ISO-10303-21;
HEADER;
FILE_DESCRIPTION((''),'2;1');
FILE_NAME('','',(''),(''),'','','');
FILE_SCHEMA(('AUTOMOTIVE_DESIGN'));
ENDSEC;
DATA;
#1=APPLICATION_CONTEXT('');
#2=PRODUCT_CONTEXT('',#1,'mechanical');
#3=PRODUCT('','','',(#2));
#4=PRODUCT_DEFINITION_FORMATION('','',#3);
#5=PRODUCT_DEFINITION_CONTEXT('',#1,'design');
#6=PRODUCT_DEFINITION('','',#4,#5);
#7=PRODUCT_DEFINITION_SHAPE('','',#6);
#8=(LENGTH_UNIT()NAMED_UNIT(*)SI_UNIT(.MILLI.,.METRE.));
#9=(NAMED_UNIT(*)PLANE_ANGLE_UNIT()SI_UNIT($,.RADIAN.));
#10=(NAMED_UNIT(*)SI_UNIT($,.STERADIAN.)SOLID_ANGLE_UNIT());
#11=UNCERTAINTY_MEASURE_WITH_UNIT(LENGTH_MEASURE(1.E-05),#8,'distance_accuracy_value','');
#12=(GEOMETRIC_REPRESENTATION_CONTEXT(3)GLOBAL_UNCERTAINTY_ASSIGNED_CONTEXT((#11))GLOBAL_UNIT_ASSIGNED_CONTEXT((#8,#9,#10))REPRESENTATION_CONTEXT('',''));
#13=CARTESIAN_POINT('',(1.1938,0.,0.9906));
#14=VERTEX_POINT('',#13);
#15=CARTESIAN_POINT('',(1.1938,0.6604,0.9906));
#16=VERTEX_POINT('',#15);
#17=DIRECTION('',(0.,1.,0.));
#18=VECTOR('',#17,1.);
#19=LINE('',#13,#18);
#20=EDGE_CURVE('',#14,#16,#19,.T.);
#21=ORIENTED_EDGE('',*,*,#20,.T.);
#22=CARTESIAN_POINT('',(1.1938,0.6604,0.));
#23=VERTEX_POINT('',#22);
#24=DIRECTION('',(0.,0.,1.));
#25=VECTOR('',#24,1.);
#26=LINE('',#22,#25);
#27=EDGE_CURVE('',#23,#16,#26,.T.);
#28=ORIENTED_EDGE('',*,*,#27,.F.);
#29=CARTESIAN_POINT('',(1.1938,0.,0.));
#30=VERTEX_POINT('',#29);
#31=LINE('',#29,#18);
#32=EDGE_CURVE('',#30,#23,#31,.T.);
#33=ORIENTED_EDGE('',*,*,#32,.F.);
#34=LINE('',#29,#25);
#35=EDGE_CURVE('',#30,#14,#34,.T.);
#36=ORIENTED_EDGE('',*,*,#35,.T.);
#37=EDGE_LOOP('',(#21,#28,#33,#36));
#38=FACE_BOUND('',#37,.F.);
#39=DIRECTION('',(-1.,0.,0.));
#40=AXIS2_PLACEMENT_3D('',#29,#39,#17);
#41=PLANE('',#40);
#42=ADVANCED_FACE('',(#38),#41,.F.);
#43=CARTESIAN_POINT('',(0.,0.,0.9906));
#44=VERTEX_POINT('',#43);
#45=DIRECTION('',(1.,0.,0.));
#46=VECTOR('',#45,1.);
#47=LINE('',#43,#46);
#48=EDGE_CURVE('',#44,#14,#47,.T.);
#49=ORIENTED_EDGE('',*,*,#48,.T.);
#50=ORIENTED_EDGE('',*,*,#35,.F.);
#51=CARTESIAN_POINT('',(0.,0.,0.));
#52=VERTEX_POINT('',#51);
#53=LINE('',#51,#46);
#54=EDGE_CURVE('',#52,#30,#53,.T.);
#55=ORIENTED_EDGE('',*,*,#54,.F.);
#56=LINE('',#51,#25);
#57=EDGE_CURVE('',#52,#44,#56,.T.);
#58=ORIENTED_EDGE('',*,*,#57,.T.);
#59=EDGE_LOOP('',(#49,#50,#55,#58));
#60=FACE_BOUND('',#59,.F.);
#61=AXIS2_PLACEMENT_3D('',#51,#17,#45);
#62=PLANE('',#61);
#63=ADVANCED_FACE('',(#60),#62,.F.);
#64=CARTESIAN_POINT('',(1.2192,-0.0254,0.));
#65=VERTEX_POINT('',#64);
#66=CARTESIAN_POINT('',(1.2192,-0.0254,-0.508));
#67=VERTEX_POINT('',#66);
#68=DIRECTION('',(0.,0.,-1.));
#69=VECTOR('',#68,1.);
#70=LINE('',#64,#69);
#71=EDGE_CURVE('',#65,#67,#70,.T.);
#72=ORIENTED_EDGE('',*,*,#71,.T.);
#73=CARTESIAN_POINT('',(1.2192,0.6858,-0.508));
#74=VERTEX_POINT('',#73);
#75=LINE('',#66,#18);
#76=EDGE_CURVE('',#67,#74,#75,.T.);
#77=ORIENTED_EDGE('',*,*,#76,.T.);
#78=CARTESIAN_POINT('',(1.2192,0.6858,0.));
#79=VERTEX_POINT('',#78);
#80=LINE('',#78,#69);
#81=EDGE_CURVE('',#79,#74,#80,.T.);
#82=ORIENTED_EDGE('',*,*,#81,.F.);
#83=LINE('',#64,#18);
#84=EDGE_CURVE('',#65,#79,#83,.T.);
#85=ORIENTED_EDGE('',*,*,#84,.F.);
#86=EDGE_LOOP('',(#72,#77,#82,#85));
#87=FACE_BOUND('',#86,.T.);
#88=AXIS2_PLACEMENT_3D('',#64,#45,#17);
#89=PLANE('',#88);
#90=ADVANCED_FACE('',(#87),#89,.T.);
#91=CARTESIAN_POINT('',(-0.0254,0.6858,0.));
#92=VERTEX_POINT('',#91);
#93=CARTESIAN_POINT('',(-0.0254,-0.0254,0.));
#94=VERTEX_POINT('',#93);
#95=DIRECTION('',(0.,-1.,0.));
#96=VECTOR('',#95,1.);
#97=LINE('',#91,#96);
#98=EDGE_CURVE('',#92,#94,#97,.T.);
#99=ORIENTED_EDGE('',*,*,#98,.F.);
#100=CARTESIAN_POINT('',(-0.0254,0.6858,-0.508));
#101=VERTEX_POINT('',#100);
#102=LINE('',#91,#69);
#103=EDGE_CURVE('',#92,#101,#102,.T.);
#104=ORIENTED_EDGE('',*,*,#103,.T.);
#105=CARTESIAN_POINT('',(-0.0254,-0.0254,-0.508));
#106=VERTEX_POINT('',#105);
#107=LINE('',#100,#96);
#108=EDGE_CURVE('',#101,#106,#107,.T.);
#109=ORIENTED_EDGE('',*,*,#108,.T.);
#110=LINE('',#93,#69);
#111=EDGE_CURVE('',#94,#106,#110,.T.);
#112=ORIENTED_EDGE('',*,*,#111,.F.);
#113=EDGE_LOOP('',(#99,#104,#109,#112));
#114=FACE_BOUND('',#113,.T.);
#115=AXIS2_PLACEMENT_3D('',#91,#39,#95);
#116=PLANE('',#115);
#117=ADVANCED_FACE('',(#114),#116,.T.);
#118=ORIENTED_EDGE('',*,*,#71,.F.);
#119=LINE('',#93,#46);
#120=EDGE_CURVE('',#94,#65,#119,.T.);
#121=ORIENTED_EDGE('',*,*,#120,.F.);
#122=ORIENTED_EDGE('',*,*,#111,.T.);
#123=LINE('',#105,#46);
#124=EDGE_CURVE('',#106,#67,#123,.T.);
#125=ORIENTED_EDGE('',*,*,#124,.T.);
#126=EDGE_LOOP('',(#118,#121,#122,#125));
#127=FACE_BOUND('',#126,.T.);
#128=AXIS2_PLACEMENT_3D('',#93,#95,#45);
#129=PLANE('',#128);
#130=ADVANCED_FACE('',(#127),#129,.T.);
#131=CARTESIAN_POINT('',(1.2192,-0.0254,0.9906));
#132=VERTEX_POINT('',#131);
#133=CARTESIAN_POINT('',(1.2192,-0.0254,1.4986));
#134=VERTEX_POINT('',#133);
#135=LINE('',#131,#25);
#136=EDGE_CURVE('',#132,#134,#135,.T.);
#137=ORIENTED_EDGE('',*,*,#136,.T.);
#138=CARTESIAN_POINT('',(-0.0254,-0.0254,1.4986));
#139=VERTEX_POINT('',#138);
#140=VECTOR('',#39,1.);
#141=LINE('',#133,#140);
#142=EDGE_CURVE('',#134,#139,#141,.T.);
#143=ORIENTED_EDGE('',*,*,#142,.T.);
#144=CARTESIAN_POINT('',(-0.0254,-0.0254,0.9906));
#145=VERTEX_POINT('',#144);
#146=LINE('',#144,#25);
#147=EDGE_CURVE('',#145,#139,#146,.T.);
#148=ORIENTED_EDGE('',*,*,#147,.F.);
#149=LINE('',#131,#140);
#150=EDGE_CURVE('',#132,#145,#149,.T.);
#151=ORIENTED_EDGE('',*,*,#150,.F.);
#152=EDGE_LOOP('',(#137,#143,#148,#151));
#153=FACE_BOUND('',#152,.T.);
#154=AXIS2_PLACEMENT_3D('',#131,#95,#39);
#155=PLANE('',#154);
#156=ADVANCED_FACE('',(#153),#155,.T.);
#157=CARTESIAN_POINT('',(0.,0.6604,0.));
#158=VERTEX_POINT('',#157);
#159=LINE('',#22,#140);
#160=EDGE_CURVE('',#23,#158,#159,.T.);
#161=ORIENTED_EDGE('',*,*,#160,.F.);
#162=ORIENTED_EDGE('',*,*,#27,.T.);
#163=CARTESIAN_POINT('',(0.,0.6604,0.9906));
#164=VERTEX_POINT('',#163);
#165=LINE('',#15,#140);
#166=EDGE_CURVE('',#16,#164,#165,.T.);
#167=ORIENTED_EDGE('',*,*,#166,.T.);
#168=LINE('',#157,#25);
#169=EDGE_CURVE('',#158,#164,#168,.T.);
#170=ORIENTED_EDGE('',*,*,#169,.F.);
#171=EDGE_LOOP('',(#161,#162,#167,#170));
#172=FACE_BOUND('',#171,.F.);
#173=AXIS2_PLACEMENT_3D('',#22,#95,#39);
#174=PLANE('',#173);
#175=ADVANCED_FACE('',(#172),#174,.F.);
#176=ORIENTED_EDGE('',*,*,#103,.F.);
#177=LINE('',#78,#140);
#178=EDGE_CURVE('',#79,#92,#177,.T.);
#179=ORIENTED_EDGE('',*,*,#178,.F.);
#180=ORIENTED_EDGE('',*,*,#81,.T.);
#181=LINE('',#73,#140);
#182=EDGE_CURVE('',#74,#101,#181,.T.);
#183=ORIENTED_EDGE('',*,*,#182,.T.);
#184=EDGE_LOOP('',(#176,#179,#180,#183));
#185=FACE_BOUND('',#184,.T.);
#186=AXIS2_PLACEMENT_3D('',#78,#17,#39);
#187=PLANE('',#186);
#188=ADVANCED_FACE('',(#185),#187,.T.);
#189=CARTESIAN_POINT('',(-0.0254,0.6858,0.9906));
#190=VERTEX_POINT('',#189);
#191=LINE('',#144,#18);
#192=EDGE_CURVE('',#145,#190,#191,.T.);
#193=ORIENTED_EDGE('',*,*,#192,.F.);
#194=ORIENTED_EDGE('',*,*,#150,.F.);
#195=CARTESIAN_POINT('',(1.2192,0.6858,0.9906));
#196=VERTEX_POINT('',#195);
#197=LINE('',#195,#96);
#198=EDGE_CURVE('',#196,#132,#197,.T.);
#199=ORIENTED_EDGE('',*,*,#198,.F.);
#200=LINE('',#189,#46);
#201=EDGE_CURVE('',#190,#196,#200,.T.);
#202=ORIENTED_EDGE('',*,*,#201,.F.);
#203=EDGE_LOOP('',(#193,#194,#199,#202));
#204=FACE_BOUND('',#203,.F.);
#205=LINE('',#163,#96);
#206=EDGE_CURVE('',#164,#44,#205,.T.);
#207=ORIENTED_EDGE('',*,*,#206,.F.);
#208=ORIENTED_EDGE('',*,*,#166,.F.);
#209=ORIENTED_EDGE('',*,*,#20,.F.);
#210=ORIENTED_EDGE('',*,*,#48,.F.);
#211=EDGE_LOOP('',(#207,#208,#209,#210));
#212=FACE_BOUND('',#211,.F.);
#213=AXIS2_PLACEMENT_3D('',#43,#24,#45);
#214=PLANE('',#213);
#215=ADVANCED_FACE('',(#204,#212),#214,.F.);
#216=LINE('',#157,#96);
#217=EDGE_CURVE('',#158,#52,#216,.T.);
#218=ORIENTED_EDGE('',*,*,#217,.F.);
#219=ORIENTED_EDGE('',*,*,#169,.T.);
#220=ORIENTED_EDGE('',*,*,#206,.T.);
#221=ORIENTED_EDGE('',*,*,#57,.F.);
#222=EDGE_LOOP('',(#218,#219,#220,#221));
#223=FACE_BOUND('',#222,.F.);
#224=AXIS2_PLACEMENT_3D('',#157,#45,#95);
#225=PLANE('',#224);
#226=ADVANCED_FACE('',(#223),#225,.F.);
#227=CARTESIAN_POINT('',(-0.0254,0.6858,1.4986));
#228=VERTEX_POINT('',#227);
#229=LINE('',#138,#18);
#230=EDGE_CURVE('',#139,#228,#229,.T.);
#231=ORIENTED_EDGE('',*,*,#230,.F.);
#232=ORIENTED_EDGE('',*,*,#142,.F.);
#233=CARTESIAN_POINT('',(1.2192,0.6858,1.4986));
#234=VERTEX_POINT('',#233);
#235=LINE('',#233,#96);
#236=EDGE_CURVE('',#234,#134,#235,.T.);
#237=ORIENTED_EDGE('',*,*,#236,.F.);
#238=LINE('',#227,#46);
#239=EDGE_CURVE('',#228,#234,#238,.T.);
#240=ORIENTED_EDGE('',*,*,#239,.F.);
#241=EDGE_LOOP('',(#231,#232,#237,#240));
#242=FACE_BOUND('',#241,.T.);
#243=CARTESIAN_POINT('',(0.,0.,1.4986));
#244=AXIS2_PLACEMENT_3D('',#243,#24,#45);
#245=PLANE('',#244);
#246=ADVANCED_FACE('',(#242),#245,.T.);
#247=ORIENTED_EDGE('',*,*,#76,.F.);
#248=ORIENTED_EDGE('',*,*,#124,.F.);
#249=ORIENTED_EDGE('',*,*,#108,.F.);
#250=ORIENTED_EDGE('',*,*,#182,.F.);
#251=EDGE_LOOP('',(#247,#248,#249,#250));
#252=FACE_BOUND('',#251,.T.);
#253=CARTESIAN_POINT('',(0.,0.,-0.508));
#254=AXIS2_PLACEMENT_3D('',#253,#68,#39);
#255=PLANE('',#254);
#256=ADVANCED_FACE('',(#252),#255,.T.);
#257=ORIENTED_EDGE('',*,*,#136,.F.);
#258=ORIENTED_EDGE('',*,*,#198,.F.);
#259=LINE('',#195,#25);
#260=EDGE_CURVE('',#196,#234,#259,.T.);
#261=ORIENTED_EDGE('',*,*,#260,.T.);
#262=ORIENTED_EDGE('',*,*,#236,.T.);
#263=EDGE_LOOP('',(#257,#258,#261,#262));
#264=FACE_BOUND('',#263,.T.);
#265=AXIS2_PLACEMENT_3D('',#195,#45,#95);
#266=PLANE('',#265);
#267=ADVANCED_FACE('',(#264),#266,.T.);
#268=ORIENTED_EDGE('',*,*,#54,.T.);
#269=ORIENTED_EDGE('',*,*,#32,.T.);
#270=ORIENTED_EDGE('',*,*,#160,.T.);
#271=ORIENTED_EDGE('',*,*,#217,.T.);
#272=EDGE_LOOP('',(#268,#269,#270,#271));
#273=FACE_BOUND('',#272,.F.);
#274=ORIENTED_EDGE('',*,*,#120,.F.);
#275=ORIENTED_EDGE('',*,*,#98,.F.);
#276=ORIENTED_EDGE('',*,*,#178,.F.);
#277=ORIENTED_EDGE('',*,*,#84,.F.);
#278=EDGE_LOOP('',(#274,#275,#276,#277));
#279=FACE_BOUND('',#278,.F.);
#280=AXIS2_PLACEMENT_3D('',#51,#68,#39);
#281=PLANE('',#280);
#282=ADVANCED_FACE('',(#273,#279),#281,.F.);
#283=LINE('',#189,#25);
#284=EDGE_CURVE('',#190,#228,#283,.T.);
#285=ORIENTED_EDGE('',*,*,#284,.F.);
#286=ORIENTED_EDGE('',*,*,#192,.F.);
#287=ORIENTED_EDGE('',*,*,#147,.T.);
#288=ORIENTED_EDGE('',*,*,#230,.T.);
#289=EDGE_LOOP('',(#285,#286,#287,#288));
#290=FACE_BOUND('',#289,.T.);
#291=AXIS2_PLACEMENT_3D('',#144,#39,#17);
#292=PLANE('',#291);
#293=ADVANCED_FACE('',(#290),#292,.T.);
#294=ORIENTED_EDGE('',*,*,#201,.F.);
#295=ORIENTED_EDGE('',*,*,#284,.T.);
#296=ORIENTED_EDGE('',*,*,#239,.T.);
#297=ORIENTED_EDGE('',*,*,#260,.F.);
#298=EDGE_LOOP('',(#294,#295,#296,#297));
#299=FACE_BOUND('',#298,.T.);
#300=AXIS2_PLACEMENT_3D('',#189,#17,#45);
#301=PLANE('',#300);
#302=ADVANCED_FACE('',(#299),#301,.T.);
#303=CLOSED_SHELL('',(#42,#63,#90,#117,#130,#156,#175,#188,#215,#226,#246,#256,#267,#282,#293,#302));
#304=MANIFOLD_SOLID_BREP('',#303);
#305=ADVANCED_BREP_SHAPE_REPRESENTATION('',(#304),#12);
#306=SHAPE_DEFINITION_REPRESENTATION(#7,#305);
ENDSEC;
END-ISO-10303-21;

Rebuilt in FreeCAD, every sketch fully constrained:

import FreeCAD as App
import Part
import Sketcher

V = App.Vector
Q = App.Units.Quantity


def add_polygon(sketch, points):
    """Adds a closed chain of lines whose ends are joined by coincident constraints."""
    first, n = sketch.GeometryCount, len(points)
    for a, b in zip(points, points[1:] + points[:1]):
        sketch.addGeometry(Part.LineSegment(App.Vector(*a, 0), App.Vector(*b, 0)), False)
    for i in range(n):
        sketch.addConstraint(Sketcher.Constraint("Coincident", first + i, 2, first + (i + 1) % n, 1))

doc = App.newDocument("Part")
body = doc.addObject("PartDesign::Body", "Body")

sketch1 = doc.addObject("Sketcher::SketchObject", "Sketch")
body.addObject(sketch1)
sketch1.AttachmentSupport = (doc.XY_Plane, [""])
sketch1.MapMode = "FlatFace"
add_polygon(sketch1, [(0, 0.7), (0, 0), (1.2, 0), (1.2, 0.7)])
sketch1.addConstraint([
    Sketcher.Constraint("Vertical", 0),
    Sketcher.Constraint("Horizontal", 1),
    Sketcher.Constraint("Vertical", 2),
    Sketcher.Constraint("Horizontal", 3),
    Sketcher.Constraint("Coincident", 0, 2, -1, 1),
    Sketcher.Constraint("DistanceX", 1, 1, 1, 2, Q("0.047 in")),
    Sketcher.Constraint("DistanceY", 0, 2, 0, 1, Q("0.026 in")),
])
pad1 = doc.addObject("PartDesign::Pad", "Pad")
body.addObject(pad1)
pad1.Profile = sketch1
pad1.Length = Q("0.039 in")

sketch2 = doc.addObject("Sketcher::SketchObject", "Sketch001")
body.addObject(sketch2)
sketch2.AttachmentSupport = (doc.XY_Plane, [""])
sketch2.MapMode = "FlatFace"
sketch2.AttachmentOffset = App.Placement(V(0, 0, 0.039 * 25.4), App.Rotation())
add_polygon(sketch2, [(1.2, 0.7), (0, 0.7), (0, 0), (1.2, 0)])
sketch2.addConstraint([
    Sketcher.Constraint("Horizontal", 0),
    Sketcher.Constraint("Vertical", 1),
    Sketcher.Constraint("Horizontal", 2),
    Sketcher.Constraint("Vertical", 3),
    Sketcher.Constraint("DistanceX", 0, 2, -1, 1, Q("0.001 in")),
    Sketcher.Constraint("DistanceY", 1, 2, -1, 1, Q("0.001 in")),
    Sketcher.Constraint("DistanceX", 0, 2, 0, 1, Q("0.049 in")),
    Sketcher.Constraint("DistanceY", 1, 2, 1, 1, Q("0.028 in")),
])
pad2 = doc.addObject("PartDesign::Pad", "Pad001")
body.addObject(pad2)
pad2.Profile = sketch2
pad2.Length = Q("0.02 in")

sketch3 = doc.addObject("Sketcher::SketchObject", "Sketch002")
body.addObject(sketch3)
sketch3.AttachmentSupport = (doc.XY_Plane, [""])
sketch3.MapMode = "FlatFace"
add_polygon(sketch3, [(1.2, 0), (0, 0), (0, 0.7), (1.2, 0.7)])
sketch3.addConstraint([
    Sketcher.Constraint("Horizontal", 0),
    Sketcher.Constraint("Vertical", 1),
    Sketcher.Constraint("Horizontal", 2),
    Sketcher.Constraint("Vertical", 3),
    Sketcher.Constraint("DistanceX", 0, 2, 0, 1, Q("0.049 in")),
    Sketcher.Constraint("DistanceY", 1, 1, 1, 2, Q("0.028 in")),
    Sketcher.Constraint("DistanceX", 0, 2, -1, 1, Q("0.001 in")),
    Sketcher.Constraint("DistanceY", 0, 2, -1, 1, Q("0.001 in")),
])
pad3 = doc.addObject("PartDesign::Pad", "Pad002")
body.addObject(pad3)
pad3.Profile = sketch3
pad3.Length = Q("0.02 in")
pad3.Reversed = True

doc.recompute()
